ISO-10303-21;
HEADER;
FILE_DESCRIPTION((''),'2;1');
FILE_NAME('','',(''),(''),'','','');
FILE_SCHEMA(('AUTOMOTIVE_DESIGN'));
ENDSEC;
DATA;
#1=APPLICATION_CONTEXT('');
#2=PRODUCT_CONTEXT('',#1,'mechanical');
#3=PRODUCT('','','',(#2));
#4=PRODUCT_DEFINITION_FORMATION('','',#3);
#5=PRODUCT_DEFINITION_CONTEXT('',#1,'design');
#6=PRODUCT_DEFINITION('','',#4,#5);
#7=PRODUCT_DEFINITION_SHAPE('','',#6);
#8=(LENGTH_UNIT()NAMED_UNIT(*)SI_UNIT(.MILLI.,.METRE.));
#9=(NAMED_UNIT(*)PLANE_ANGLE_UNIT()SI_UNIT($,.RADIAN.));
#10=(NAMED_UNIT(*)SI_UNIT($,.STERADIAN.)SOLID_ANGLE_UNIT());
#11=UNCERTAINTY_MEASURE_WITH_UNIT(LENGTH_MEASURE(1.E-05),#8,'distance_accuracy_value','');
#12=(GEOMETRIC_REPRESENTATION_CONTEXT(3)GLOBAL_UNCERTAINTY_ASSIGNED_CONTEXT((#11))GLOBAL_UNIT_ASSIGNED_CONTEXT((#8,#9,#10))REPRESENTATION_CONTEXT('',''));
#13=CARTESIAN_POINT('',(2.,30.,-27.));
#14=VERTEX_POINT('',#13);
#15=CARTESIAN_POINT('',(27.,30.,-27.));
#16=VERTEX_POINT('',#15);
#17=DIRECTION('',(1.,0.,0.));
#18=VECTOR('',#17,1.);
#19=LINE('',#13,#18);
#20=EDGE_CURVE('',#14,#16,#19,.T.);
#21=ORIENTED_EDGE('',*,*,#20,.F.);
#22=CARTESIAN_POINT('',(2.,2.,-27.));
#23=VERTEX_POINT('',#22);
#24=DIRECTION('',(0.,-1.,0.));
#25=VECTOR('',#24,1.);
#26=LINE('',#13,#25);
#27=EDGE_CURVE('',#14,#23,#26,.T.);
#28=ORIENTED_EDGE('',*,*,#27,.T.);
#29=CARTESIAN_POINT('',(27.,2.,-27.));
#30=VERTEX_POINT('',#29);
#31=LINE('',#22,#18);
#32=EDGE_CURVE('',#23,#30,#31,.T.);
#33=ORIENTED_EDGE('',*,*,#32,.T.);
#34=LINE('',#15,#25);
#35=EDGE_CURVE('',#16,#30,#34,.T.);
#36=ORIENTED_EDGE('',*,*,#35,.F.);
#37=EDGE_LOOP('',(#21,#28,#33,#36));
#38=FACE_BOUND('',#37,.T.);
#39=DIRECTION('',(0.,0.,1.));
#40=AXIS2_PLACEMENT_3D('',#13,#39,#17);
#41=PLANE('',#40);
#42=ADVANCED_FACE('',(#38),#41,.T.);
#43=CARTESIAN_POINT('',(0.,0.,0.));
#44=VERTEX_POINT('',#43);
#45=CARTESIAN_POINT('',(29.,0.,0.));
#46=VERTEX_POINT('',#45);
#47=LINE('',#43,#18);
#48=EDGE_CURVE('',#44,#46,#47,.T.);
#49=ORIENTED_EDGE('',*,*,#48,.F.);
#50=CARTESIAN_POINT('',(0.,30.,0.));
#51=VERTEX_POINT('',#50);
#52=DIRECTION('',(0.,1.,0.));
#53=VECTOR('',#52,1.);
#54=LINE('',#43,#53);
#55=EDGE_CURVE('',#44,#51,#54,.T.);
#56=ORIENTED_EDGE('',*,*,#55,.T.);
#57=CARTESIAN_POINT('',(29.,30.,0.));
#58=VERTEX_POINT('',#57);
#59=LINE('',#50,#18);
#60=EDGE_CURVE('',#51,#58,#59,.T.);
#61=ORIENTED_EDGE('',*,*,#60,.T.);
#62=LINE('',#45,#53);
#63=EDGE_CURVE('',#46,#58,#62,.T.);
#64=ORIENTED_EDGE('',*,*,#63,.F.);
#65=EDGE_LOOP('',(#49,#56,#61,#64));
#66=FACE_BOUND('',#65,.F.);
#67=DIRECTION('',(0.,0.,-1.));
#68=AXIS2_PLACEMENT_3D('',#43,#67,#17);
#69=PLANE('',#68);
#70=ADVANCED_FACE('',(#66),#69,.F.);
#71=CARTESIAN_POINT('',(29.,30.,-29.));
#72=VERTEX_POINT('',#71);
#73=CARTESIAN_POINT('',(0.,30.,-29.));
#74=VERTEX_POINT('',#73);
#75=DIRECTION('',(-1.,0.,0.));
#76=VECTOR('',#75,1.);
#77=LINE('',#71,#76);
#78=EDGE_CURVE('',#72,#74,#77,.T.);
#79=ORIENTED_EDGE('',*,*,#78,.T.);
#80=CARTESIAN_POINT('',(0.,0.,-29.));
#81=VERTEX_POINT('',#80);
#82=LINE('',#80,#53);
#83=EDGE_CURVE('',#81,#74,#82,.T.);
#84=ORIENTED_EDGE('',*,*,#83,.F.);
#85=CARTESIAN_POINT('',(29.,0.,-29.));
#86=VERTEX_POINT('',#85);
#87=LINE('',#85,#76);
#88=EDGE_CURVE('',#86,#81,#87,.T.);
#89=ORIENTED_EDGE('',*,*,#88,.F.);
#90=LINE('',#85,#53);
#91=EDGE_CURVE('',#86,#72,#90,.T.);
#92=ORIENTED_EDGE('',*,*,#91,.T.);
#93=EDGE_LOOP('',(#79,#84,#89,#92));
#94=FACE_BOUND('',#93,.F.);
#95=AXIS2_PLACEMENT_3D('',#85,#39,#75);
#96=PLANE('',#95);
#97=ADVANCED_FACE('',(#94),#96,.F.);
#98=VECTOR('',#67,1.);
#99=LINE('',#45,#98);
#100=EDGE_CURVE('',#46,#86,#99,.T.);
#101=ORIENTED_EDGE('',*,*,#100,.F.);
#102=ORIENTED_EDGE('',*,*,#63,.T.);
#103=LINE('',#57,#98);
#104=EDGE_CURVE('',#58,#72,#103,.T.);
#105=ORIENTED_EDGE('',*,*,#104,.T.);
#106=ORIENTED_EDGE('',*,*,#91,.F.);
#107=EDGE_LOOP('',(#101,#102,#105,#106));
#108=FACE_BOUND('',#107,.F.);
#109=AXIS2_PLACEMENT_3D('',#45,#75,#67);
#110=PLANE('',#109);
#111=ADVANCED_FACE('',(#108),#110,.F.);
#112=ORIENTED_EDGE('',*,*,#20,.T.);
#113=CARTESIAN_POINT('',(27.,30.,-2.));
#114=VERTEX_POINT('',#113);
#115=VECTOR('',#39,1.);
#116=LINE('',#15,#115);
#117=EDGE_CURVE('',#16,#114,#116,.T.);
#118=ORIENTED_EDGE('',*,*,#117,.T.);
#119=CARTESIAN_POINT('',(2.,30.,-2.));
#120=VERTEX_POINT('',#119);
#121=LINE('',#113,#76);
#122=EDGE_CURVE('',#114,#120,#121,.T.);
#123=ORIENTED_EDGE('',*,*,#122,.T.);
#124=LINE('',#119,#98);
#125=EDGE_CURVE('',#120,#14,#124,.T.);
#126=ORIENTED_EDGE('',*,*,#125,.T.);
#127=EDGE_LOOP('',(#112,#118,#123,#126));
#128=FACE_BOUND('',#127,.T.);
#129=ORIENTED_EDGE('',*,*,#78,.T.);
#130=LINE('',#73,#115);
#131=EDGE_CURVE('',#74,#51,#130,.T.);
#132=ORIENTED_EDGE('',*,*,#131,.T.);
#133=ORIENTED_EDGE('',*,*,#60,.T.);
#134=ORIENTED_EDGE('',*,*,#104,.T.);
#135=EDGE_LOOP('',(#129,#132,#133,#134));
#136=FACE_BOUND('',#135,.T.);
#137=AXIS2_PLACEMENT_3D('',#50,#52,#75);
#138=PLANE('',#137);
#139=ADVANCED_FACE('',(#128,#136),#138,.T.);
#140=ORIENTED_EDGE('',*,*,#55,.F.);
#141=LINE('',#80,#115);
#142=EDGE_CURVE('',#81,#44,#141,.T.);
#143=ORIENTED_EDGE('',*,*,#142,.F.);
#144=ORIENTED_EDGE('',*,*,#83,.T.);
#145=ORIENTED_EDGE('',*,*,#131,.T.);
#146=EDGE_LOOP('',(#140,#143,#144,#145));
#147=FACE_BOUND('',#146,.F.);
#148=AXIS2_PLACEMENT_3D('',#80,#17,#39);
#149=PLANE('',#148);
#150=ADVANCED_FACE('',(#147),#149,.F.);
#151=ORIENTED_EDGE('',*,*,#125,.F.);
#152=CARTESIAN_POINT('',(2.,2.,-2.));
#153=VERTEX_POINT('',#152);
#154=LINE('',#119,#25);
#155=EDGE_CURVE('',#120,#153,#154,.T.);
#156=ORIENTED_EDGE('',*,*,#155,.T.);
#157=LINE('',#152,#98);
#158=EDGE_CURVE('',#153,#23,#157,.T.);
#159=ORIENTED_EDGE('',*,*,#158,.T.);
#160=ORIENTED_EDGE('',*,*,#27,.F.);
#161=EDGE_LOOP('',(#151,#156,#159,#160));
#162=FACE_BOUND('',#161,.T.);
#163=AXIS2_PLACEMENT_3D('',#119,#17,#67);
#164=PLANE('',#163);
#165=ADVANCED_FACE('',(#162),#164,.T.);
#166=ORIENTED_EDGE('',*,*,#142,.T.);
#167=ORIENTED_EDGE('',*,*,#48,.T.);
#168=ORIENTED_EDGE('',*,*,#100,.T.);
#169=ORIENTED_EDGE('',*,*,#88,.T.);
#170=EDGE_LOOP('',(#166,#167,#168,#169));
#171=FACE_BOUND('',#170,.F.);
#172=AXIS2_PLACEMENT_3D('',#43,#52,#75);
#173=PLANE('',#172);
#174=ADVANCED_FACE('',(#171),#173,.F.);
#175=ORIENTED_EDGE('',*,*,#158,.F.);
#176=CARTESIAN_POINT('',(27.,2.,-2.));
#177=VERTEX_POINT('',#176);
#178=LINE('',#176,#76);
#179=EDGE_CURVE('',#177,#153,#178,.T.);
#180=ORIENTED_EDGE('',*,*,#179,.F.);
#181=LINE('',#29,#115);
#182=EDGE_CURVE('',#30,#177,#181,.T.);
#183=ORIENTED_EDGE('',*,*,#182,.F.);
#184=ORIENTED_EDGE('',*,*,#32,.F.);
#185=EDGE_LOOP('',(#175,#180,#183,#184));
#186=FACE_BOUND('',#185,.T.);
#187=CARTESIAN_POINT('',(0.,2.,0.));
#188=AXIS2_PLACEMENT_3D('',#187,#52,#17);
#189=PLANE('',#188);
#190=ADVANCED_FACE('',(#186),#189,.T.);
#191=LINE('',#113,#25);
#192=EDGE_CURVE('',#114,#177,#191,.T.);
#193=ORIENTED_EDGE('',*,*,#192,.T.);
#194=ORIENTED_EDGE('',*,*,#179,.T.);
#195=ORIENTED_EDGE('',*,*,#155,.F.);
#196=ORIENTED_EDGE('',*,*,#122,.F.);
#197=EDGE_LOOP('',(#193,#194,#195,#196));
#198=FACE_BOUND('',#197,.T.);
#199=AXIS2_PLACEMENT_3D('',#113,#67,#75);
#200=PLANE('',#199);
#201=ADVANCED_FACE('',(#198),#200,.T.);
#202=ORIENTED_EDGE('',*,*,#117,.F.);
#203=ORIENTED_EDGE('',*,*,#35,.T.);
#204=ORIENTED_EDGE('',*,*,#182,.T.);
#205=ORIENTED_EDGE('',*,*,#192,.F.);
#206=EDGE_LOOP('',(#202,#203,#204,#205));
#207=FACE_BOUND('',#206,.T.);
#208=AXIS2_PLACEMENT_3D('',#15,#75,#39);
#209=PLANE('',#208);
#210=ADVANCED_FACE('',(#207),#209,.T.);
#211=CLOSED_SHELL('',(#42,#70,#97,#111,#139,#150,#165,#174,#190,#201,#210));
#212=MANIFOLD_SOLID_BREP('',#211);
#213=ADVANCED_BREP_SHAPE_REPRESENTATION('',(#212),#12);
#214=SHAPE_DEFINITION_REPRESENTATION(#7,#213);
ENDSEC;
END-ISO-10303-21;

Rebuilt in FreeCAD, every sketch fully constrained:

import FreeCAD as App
import Part
import Sketcher

V = App.Vector
Q = App.Units.Quantity


def add_polygon(sketch, points):
    """Adds a closed chain of lines whose ends are joined by coincident constraints."""
    first, n = sketch.GeometryCount, len(points)
    for a, b in zip(points, points[1:] + points[:1]):
        sketch.addGeometry(Part.LineSegment(App.Vector(*a, 0), App.Vector(*b, 0)), False)
    for i in range(n):
        sketch.addConstraint(Sketcher.Constraint("Coincident", first + i, 2, first + (i + 1) % n, 1))

doc = App.newDocument("Part")
params = doc.addObject("Spreadsheet::Sheet", "Params")
for row, (alias, value) in enumerate([
    ("sketch1_width", "29 mm"),
    ("pad1_length", "30 mm"),
    ("sketch2_width", "25 mm"),
    ("pocket1_length", "28 mm"),
], start=1):
    params.set(f"A{row}", alias)
    params.set(f"B{row}", "=" + value)
    params.setAlias(f"B{row}", alias)

body = doc.addObject("PartDesign::Body", "Body")

# Sketch on XZ plane
sketch1 = body.newObject("Sketcher::SketchObject", "Sketch")
sketch1.AttachmentSupport = (doc.getObject("XZ_Plane"), [""])
sketch1.MapMode = "FlatFace"
add_polygon(sketch1, [(0, -29), (0, 0), (29, 0), (29, -29)])  # lines 0-3
sketch1.addConstraint(Sketcher.Constraint("Vertical", 0))
sketch1.addConstraint(Sketcher.Constraint("Horizontal", 1))
sketch1.addConstraint(Sketcher.Constraint("Vertical", 2))
sketch1.addConstraint(Sketcher.Constraint("Horizontal", 3))
sketch1.addConstraint(Sketcher.Constraint("Coincident", 0, 2, -1, 1))
sketch1.addConstraint(Sketcher.Constraint("Equal", 3, 0))
sketch1.addConstraint(Sketcher.Constraint("DistanceX", 1, 1, 1, 2, Q("29 mm")))
sketch1.setExpression("Constraints[10]", "Params.sketch1_width")
pad1 = body.newObject("PartDesign::Pad", "Pad")
pad1.Profile = sketch1
pad1.setExpression("Length", "Params.pad1_length")
pad1.Reversed = True

# Sketch on XZ plane
sketch2 = body.newObject("Sketcher::SketchObject", "Sketch001")
sketch2.AttachmentSupport = (doc.getObject("XZ_Plane"), [""])
sketch2.MapMode = "FlatFace"
sketch2.AttachmentOffset = App.Placement(V(0, 0, -30), App.Rotation())
add_polygon(sketch2, [(27, -27), (2, -27), (2, -2), (27, -2)])  # lines 0-3
sketch2.addConstraint(Sketcher.Constraint("Horizontal", 0))
sketch2.addConstraint(Sketcher.Constraint("Vertical", 1))
sketch2.addConstraint(Sketcher.Constraint("Horizontal", 2))
sketch2.addConstraint(Sketcher.Constraint("Vertical", 3))
sketch2.addConstraint(Sketcher.Constraint("Equal", 2, 1))
sketch2.addConstraint(Sketcher.Constraint("DistanceX", -1, 1, 0, 2, Q("2 mm")))
sketch2.addConstraint(Sketcher.Constraint("DistanceY", 1, 2, -1, 1, Q("2 mm")))
sketch2.addConstraint(Sketcher.Constraint("DistanceX", 0, 2, 0, 1, Q("25 mm")))
sketch2.setExpression("Constraints[11]", "Params.sketch2_width")
pocket1 = body.newObject("PartDesign::Pocket", "Pocket")
pocket1.Profile = sketch2
pocket1.setExpression("Length", "Params.pocket1_length")
pocket1.Reversed = True

doc.recompute()
